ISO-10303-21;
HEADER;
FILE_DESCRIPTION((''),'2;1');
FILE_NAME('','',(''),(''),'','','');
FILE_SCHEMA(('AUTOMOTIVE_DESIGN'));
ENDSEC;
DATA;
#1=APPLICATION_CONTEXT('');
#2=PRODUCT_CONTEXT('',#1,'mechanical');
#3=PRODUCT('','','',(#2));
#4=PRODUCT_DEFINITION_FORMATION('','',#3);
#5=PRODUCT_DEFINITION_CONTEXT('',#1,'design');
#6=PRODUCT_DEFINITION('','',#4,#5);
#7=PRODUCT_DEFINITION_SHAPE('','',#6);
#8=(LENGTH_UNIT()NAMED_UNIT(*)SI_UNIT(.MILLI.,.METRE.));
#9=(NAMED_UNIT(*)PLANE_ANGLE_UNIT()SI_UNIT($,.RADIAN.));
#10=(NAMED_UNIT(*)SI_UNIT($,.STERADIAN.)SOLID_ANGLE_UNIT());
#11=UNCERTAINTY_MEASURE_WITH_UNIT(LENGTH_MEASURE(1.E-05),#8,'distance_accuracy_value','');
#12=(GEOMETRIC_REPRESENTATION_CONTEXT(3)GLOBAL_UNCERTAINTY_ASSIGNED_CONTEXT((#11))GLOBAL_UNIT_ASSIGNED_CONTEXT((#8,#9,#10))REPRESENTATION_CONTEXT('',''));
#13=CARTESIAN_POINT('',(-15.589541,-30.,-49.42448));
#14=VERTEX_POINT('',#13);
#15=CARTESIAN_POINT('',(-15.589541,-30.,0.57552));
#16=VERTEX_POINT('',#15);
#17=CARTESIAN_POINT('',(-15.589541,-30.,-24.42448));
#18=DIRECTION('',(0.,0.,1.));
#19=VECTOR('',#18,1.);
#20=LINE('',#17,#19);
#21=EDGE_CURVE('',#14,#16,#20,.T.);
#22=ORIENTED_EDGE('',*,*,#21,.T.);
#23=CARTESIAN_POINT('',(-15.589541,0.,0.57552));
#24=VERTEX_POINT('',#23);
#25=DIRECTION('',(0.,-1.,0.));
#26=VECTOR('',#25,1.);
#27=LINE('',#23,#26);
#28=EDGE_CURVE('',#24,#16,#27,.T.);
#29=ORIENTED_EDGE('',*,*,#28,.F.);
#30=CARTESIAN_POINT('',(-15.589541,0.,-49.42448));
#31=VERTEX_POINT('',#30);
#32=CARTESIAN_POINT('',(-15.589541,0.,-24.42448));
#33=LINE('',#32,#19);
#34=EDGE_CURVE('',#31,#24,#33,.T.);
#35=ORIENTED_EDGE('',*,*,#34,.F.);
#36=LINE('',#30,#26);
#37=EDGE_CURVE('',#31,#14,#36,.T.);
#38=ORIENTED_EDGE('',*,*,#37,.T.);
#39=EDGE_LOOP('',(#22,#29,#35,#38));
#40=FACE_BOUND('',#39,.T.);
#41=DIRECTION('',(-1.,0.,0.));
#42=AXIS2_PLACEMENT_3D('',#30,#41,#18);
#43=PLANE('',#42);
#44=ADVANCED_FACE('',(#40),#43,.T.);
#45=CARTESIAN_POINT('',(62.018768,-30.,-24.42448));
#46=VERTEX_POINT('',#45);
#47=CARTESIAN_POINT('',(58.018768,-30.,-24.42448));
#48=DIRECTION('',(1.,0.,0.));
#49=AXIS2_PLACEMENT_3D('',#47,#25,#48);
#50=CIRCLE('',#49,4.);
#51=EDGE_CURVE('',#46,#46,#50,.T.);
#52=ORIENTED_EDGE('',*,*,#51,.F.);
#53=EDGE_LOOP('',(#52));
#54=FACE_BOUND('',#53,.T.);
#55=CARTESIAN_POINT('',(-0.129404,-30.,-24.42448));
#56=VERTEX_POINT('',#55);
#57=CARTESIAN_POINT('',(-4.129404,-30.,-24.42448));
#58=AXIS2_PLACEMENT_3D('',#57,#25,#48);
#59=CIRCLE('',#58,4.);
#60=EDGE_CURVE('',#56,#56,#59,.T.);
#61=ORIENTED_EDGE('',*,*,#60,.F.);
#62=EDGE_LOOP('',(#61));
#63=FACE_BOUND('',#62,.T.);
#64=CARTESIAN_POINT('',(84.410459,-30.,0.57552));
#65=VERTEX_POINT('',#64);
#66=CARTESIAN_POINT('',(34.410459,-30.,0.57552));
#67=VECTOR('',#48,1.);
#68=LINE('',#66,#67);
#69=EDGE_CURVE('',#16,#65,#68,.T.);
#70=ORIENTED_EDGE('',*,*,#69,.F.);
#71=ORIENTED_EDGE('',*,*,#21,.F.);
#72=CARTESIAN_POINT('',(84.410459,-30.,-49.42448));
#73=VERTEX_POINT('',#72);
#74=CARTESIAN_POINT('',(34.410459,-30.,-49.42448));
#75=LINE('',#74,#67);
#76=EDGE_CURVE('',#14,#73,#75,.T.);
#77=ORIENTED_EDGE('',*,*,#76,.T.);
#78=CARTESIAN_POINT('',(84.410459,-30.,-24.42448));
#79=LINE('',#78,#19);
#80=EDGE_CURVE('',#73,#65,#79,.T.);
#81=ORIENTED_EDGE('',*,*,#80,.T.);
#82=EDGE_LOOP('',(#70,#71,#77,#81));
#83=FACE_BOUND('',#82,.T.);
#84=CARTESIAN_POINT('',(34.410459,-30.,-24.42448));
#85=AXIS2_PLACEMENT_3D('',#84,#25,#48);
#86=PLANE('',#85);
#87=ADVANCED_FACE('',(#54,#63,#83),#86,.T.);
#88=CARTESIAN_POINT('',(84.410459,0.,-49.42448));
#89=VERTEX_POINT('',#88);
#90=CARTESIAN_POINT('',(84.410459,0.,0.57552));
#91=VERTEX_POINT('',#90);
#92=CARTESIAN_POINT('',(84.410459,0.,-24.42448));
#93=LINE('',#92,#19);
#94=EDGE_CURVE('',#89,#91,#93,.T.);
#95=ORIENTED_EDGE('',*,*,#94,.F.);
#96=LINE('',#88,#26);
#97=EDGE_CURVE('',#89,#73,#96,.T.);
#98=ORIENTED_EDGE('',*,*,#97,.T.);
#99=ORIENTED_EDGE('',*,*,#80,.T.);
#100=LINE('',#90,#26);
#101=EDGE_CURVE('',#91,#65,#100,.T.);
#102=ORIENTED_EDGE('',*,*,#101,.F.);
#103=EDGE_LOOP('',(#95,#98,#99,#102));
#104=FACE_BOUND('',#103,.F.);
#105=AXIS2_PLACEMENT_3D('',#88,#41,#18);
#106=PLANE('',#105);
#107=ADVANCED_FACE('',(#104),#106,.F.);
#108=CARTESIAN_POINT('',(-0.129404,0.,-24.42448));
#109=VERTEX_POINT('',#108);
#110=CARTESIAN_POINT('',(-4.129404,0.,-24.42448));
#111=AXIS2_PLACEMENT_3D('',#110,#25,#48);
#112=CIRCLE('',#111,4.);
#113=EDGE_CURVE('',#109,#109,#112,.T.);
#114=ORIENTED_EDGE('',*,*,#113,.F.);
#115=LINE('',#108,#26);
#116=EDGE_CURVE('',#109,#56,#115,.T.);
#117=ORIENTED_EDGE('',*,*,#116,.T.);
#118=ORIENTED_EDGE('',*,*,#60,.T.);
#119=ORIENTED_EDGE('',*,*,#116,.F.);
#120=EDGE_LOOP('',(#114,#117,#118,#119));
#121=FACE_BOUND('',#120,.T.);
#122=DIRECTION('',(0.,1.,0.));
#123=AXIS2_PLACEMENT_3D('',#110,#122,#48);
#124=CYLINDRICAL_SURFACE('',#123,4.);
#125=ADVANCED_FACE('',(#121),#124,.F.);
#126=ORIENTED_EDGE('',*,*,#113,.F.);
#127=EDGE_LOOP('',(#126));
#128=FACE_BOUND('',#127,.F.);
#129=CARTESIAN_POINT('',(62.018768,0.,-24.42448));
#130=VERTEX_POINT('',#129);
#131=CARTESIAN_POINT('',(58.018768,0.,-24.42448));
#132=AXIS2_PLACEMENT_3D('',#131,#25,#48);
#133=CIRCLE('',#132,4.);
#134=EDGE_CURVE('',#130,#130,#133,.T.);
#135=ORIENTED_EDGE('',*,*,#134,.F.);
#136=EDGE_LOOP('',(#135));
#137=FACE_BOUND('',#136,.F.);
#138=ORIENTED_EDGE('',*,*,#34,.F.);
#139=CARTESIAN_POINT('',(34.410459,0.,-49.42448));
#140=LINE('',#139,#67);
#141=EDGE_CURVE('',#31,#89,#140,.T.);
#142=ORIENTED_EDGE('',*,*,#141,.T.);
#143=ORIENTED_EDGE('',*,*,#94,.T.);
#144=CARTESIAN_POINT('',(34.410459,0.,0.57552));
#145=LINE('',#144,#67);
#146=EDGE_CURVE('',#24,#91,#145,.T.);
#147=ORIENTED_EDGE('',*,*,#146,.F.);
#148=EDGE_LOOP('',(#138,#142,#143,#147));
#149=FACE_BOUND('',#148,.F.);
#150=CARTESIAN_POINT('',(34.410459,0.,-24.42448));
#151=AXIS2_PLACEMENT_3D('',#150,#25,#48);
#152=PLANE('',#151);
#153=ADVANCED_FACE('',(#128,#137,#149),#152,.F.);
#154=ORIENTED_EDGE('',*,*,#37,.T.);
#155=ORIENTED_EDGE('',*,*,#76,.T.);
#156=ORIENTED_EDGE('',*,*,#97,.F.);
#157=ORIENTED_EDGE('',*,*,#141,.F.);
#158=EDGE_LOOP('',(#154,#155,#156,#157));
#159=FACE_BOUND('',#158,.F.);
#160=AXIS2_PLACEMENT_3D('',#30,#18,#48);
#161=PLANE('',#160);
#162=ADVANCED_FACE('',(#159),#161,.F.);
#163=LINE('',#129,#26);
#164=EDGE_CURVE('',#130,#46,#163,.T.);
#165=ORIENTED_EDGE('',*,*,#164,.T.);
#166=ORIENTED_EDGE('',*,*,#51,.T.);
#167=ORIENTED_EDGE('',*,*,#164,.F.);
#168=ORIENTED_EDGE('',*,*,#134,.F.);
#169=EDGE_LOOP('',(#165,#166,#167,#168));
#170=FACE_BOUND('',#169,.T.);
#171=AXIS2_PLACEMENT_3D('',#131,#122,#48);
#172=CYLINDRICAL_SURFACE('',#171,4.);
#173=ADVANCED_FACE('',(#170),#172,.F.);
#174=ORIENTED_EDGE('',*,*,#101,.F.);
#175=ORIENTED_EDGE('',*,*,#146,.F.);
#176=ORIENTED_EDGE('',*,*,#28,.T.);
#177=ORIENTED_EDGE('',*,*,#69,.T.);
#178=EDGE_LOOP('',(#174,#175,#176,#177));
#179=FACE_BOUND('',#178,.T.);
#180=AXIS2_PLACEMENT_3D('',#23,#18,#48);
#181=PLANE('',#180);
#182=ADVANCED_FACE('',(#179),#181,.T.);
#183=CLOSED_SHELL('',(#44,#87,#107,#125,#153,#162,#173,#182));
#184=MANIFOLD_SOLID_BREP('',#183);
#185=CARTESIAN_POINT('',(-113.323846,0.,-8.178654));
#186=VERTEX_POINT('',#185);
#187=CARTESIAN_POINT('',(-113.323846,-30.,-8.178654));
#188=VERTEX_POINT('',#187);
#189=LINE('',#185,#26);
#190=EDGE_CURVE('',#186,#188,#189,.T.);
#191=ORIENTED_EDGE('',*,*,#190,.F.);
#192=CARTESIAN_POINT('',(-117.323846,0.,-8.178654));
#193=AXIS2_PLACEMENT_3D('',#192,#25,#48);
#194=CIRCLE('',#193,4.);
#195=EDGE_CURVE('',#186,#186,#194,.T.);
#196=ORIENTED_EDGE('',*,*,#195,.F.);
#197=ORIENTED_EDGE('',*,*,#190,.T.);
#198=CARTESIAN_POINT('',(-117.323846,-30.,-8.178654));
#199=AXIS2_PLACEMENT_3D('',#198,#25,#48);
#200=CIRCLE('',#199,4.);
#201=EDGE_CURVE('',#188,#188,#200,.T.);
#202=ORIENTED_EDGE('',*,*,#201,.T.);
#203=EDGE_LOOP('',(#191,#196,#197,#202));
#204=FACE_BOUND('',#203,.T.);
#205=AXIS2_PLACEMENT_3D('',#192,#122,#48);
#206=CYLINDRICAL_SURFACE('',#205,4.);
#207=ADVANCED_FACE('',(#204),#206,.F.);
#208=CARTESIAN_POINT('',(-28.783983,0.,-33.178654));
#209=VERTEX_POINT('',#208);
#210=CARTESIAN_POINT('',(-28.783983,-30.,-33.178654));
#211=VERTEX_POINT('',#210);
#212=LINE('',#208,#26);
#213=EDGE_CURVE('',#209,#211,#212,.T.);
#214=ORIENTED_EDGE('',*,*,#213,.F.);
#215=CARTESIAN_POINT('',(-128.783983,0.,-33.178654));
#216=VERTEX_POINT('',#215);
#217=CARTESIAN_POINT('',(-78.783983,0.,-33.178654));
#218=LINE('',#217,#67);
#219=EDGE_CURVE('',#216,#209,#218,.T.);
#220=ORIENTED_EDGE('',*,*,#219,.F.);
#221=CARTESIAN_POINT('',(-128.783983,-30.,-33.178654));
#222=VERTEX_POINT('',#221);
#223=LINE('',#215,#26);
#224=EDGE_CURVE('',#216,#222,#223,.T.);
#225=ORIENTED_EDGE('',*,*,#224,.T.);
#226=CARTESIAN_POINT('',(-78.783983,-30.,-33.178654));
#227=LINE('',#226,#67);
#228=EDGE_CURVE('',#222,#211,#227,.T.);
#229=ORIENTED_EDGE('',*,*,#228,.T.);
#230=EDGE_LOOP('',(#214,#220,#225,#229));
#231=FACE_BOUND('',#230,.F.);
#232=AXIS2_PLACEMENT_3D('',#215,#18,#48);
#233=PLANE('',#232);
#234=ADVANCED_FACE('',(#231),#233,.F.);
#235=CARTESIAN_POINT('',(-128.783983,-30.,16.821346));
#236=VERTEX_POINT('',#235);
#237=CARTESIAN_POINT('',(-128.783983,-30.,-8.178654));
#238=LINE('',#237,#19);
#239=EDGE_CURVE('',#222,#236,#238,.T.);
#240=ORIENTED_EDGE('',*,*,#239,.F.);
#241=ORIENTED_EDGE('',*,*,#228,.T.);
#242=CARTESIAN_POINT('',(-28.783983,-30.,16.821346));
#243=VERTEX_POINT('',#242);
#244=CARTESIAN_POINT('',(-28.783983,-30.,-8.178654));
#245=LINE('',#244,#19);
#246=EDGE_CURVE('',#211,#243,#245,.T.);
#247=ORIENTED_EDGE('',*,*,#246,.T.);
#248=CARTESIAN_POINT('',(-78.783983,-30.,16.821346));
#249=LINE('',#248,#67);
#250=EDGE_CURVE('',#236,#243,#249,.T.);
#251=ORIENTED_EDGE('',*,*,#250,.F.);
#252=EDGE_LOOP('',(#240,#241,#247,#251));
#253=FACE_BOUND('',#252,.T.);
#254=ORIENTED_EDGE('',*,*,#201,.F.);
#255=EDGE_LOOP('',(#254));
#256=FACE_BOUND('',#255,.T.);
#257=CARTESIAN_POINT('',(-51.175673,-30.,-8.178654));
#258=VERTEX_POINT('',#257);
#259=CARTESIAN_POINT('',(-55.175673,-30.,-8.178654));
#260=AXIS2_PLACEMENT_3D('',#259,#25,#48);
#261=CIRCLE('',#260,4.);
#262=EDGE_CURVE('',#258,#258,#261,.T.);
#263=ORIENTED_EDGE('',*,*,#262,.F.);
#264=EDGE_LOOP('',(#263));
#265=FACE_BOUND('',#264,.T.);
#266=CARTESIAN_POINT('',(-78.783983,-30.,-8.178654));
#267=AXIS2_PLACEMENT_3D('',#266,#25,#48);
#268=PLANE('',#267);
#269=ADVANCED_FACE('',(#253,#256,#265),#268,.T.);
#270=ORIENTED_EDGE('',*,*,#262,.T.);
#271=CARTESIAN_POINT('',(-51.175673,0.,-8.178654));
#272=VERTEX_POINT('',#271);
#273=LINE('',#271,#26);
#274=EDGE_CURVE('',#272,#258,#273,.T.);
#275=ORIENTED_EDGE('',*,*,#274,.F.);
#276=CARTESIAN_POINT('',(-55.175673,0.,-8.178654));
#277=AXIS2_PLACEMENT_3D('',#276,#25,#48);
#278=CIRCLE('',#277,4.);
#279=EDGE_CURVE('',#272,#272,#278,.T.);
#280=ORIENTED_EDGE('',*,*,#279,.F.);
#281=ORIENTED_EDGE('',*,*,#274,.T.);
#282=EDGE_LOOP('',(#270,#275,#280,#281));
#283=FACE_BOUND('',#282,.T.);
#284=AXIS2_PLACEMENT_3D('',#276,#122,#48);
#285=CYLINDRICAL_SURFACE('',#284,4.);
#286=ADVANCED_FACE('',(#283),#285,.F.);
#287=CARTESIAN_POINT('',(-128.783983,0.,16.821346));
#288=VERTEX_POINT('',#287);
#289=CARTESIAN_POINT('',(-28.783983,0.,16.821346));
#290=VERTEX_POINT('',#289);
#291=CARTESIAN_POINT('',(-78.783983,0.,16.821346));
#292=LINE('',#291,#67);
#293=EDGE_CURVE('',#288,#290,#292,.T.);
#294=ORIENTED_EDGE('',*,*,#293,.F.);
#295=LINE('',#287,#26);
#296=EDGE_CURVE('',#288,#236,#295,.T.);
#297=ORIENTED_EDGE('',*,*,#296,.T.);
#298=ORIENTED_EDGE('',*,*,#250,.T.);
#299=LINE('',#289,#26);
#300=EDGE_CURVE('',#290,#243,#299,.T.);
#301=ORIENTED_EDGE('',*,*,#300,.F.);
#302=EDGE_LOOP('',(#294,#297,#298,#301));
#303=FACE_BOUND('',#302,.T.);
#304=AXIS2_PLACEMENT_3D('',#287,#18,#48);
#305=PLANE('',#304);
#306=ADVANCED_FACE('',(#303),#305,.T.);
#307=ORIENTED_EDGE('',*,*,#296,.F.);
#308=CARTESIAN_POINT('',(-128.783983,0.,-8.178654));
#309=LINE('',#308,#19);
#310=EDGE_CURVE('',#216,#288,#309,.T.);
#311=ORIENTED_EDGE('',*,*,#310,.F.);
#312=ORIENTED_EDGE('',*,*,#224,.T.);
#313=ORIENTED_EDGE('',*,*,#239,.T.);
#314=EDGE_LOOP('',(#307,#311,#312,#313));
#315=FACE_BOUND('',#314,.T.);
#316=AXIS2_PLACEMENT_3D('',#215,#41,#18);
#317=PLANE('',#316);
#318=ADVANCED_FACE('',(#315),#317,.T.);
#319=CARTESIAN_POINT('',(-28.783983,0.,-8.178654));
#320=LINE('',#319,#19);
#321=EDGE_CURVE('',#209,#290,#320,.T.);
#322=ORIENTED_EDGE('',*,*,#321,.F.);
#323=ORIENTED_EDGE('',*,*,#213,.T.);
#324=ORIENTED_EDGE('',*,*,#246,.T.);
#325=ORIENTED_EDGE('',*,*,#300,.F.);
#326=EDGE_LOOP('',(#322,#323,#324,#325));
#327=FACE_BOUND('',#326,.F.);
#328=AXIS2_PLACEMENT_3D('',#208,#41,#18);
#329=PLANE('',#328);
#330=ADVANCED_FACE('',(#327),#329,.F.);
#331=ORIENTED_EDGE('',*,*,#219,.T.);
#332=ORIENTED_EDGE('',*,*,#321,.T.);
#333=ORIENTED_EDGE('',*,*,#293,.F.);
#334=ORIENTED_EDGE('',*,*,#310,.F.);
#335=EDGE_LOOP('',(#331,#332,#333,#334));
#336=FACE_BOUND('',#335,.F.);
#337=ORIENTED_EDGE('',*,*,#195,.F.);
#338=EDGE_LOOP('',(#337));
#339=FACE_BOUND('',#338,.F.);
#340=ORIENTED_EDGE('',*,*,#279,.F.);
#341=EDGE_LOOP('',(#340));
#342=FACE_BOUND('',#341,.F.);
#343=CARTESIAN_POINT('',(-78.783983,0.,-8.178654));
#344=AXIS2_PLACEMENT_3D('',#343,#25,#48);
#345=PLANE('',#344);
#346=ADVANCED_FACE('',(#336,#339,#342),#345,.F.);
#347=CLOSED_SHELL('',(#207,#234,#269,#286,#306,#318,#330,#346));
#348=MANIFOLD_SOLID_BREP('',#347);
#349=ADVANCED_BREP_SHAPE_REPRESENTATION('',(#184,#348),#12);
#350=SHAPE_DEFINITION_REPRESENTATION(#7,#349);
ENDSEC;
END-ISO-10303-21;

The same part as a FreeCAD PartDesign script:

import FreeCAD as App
import Part
import Sketcher
Q = App.Units.Quantity


def add_polygon(sketch, points):
    """Adds a closed chain of lines whose ends are joined by coincident constraints."""
    first, n = sketch.GeometryCount, len(points)
    for a, b in zip(points, points[1:] + points[:1]):
        sketch.addGeometry(Part.LineSegment(App.Vector(*a, 0), App.Vector(*b, 0)), False)
    for i in range(n):
        sketch.addConstraint(Sketcher.Constraint("Coincident", first + i, 2, first + (i + 1) % n, 1))

doc = App.newDocument("Part")
params = doc.addObject("Spreadsheet::Sheet", "Params")
for row, (alias, value) in enumerate([
    ("sketch1_diameter", "8 mm"),
    ("sketch1_width", "100 mm"),
    ("sketch1_height", "50 mm"),
    ("pad1_length", "30 mm"),
], start=1):
    params.set(f"A{row}", alias)
    params.set(f"B{row}", "=" + value)
    params.setAlias(f"B{row}", alias)

body = doc.addObject("PartDesign::Body", "Body")
body.AllowCompound = True

sketch1 = doc.addObject("Sketcher::SketchObject", "Sketch")
body.addObject(sketch1)
sketch1.AttachmentSupport = (doc.XZ_Plane, [""])
sketch1.MapMode = "FlatFace"
add_polygon(sketch1, [(-128.8, 16.8), (-128.8, -33.2), (-28.8, -33.2), (-28.8, 16.8)])
sketch1.addGeometry(Part.Circle(App.Vector(-117.3, -8.2, 0), App.Vector(0, 0, 1), 4), False)
sketch1.addGeometry(Part.Circle(App.Vector(-55.2, -8.2, 0), App.Vector(0, 0, 1), 4), False)
add_polygon(sketch1, [(-15.6, 0.6), (-15.6, -49.4), (84.4, -49.4), (84.4, 0.6)])
sketch1.addGeometry(Part.Circle(App.Vector(-4.1, -24.4, 0), App.Vector(0, 0, 1), 4), False)
sketch1.addGeometry(Part.Circle(App.Vector(58, -24.4, 0), App.Vector(0, 0, 1), 4), False)
sketch1.addConstraint(Sketcher.Constraint("Vertical", 0))
sketch1.addConstraint(Sketcher.Constraint("Horizontal", 1))
sketch1.addConstraint(Sketcher.Constraint("Vertical", 2))
sketch1.addConstraint(Sketcher.Constraint("Horizontal", 3))
sketch1.addConstraint(Sketcher.Constraint("Vertical", 6))
sketch1.addConstraint(Sketcher.Constraint("Horizontal", 7))
sketch1.addConstraint(Sketcher.Constraint("Vertical", 8))
sketch1.addConstraint(Sketcher.Constraint("Horizontal", 9))
sketch1.addConstraint(Sketcher.Constraint("Equal", 4, 5))
sketch1.addConstraint(Sketcher.Constraint("Equal", 5, 10))
sketch1.addConstraint(Sketcher.Constraint("Equal", 10, 11))
sketch1.addConstraint(Sketcher.Constraint("Horizontal", 4, 3, 5, 3))
sketch1.addConstraint(Sketcher.Constraint("Horizontal", 10, 3, 11, 3))
sketch1.addConstraint(Sketcher.Constraint("Equal", 3, 7))
sketch1.addConstraint(Sketcher.Constraint("Equal", 2, 6))
sketch1.addConstraint(Sketcher.Constraint("Diameter", 4, Q("8 mm")))
sketch1.addConstraint(Sketcher.Constraint("DistanceX", 1, 1, 1, 2, Q("100 mm")))
sketch1.addConstraint(Sketcher.Constraint("DistanceY", 0, 2, 0, 1, Q("50 mm")))
sketch1.addConstraint(Sketcher.Constraint("DistanceY", 0, 2, 4, 3, Q("25 mm")))
sketch1.addConstraint(Sketcher.Constraint("DistanceY", 6, 2, 10, 3, Q("25 mm")))
sketch1.addConstraint(Sketcher.Constraint("DistanceY", 10, 3, -1, 1, Q("24.42448 mm")))
sketch1.addConstraint(Sketcher.Constraint("DistanceX", 6, 2, -1, 1, Q("15.589541 mm")))
sketch1.addConstraint(Sketcher.Constraint("DistanceX", 5, 3, 10, 3, Q("51.046269 mm")))
sketch1.addConstraint(Sketcher.Constraint("DistanceX", 5, 3, 11, 3, Q("113.194441 mm")))
sketch1.addConstraint(Sketcher.Constraint("DistanceX", 0, 2, 5, 3, Q("73.60831 mm")))
sketch1.addConstraint(Sketcher.Constraint("DistanceX", 1, 2, 6, 2, Q("13.194442 mm")))
sketch1.addConstraint(Sketcher.Constraint("DistanceX", 4, 3, -1, 1, Q("117.323846 mm")))
sketch1.addConstraint(Sketcher.Constraint("DistanceY", 4, 3, -1, 1, Q("8.178654 mm")))
sketch1.setExpression("Constraints[23]", "Params.sketch1_diameter")
sketch1.setExpression("Constraints[24]", "Params.sketch1_width")
sketch1.setExpression("Constraints[25]", "Params.sketch1_height")
pad1 = doc.addObject("PartDesign::Pad", "Pad")
body.addObject(pad1)
pad1.Profile = sketch1
pad1.setExpression("Length", "Params.pad1_length")

doc.recompute()
